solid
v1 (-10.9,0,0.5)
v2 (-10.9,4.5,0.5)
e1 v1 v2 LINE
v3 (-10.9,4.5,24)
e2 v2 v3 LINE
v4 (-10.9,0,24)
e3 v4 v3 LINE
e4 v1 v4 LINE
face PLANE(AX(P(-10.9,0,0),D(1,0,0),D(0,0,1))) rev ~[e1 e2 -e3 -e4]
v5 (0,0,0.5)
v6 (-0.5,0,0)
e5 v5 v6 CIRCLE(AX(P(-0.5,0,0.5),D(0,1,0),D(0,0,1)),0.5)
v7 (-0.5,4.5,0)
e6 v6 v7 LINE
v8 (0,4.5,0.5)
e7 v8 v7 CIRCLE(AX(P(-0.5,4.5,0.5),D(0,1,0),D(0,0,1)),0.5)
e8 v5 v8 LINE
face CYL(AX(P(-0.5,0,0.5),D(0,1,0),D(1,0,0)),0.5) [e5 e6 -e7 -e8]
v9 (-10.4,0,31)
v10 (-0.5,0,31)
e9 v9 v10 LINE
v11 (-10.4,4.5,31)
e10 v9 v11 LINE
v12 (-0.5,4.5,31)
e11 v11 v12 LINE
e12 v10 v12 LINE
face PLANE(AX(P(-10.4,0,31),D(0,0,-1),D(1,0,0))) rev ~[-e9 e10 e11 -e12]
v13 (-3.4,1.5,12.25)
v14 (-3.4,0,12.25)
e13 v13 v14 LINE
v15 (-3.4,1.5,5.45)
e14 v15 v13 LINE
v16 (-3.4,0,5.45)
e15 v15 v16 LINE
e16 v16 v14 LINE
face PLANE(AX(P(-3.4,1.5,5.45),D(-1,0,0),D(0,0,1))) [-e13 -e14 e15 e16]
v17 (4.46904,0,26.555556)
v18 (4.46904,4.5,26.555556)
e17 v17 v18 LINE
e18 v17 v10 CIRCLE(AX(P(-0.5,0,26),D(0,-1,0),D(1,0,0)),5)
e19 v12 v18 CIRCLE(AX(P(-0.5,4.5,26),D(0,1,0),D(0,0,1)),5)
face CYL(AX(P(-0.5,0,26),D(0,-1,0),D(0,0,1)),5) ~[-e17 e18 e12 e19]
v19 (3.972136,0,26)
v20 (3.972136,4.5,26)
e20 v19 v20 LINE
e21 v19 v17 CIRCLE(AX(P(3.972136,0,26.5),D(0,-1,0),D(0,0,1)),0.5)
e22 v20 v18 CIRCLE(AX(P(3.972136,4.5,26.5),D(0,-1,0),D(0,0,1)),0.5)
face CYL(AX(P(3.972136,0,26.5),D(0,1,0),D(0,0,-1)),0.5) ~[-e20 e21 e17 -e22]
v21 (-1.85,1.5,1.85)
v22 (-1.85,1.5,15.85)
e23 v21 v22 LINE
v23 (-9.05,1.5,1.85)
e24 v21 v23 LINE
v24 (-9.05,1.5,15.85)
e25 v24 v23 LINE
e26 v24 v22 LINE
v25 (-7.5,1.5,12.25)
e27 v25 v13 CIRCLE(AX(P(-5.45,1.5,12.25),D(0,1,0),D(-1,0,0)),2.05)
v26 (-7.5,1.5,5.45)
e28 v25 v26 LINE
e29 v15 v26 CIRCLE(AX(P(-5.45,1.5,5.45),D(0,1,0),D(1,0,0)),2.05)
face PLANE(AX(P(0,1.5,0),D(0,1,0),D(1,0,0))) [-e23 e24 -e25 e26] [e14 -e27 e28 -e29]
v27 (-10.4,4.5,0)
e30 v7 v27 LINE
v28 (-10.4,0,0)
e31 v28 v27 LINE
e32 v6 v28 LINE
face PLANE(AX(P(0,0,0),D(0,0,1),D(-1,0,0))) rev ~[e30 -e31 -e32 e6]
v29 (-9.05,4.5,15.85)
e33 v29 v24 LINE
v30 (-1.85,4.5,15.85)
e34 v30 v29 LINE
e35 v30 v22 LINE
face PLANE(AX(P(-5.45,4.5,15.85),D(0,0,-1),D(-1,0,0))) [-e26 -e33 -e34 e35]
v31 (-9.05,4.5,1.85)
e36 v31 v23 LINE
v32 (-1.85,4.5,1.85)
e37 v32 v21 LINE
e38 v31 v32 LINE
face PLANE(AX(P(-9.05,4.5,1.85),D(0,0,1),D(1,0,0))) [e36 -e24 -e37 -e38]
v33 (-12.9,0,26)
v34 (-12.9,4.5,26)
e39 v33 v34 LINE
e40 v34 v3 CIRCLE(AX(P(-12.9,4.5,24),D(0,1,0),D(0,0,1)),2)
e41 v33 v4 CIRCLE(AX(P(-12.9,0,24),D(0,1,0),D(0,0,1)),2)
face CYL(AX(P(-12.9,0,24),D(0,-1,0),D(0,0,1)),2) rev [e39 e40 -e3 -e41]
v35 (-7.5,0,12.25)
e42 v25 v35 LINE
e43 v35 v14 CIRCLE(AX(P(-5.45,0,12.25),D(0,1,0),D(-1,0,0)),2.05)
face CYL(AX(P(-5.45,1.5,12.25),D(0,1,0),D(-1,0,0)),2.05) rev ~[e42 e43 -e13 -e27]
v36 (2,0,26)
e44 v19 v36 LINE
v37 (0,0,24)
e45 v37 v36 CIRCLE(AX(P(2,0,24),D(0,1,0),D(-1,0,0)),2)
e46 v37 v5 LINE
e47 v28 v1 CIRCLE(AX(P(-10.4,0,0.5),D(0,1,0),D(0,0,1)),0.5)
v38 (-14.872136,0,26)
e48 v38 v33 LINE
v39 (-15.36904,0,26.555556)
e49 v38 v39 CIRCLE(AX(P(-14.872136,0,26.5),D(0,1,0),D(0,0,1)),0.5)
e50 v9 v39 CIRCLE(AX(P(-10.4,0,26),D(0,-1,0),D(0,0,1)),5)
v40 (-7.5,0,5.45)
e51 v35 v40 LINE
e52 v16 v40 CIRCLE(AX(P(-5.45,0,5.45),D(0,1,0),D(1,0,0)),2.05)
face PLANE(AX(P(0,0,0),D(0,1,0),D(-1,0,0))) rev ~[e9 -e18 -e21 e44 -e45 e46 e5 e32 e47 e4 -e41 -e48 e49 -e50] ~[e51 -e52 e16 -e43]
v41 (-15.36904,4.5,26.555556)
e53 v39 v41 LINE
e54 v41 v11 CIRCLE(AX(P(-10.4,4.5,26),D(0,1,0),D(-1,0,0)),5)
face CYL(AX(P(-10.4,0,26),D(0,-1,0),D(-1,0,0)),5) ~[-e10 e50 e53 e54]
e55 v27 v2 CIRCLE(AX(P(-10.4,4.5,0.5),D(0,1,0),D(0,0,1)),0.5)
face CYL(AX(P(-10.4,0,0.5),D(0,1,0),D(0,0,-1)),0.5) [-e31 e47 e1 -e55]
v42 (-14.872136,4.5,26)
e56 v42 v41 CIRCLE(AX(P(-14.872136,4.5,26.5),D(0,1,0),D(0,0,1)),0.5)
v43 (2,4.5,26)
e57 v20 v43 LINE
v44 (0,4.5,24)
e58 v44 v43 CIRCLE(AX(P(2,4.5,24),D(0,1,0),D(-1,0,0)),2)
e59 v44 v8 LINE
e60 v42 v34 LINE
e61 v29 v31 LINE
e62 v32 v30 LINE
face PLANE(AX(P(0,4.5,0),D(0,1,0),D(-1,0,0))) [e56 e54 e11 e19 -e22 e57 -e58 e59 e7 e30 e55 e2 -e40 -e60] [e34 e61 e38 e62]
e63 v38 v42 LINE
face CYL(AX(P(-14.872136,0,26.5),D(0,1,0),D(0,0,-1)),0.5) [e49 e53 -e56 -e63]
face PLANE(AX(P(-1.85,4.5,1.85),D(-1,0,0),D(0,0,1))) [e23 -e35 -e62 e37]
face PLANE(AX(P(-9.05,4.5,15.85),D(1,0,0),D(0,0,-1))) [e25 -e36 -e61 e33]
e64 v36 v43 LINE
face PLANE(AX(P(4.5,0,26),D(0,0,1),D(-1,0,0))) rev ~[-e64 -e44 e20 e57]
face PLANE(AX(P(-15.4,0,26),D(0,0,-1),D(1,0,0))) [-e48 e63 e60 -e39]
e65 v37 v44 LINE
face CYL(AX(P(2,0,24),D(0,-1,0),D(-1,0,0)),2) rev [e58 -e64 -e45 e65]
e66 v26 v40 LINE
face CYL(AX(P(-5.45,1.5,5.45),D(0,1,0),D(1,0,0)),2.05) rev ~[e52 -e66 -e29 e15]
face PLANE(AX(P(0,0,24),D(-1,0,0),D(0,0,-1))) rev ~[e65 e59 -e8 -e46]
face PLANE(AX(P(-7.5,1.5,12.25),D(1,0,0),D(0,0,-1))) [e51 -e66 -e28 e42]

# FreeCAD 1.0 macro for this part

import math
import FreeCAD as App
import Part
import Sketcher


def edges_at(feature, points):
    """Names of the edges that pass closest to the given points."""
    edges = feature.Shape.Edges
    near = lambda p: min(range(len(edges)), key=lambda i: edges[i].distToShape(Part.Vertex(*p))[0])
    return sorted({f"Edge{near(p) + 1}" for p in points})

doc = App.newDocument("Part")
body = doc.addObject("PartDesign::Body", "Body")

# Sketch on XZ plane
sketch1 = body.newObject("Sketcher::SketchObject", "Sketch")
sketch1.AttachmentSupport = (doc.getObject("XZ_Plane"), [""])
sketch1.MapMode = "FlatFace"
sketch1.addGeometry(Part.LineSegment(App.Vector(0, 24, 0), App.Vector(0, 0, 0)), False)
sketch1.addGeometry(Part.LineSegment(App.Vector(0, 0, 0), App.Vector(-10.9, 0, 0)), False)
sketch1.addGeometry(Part.LineSegment(App.Vector(-10.9, 0, 0), App.Vector(-10.9, 24, 0)), False)
sketch1.addGeometry(Part.ArcOfCircle(Part.Circle(App.Vector(-12.9, 24, 0), App.Vector(0, 0, 1), 2), math.radians(0), math.radians(90)), False)
sketch1.addGeometry(Part.LineSegment(App.Vector(-12.9, 26, 0), App.Vector(-15.4, 26, 0)), False)
sketch1.addGeometry(Part.ArcOfCircle(Part.Circle(App.Vector(-10.4, 26, 0), App.Vector(0, 0, 1), 5), math.radians(90), math.radians(180)), False)
sketch1.addGeometry(Part.LineSegment(App.Vector(-10.4, 31, 0), App.Vector(-0.5, 31, 0)), False)
sketch1.addGeometry(Part.ArcOfCircle(Part.Circle(App.Vector(-0.5, 26, 0), App.Vector(0, 0, 1), 5), math.radians(0), math.radians(90)), False)
sketch1.addGeometry(Part.LineSegment(App.Vector(4.5, 26, 0), App.Vector(2, 26, 0)), False)
sketch1.addGeometry(Part.ArcOfCircle(Part.Circle(App.Vector(2, 24, 0), App.Vector(0, 0, 1), 2), math.radians(90), math.radians(180)), False)
sketch1.addConstraint(Sketcher.Constraint("Coincident", 0, 2, 1, 1))
sketch1.addConstraint(Sketcher.Constraint("Coincident", 1, 2, 2, 1))
sketch1.addConstraint(Sketcher.Constraint("Tangent", 2, 2, 3, 1))
sketch1.addConstraint(Sketcher.Constraint("Tangent", 3, 2, 4, 1))
sketch1.addConstraint(Sketcher.Constraint("Coincident", 4, 2, 5, 2))
sketch1.addConstraint(Sketcher.Constraint("Tangent", 5, 1, 6, 1))
sketch1.addConstraint(Sketcher.Constraint("Tangent", 6, 2, 7, 2))
sketch1.addConstraint(Sketcher.Constraint("Coincident", 7, 1, 8, 1))
sketch1.addConstraint(Sketcher.Constraint("Tangent", 8, 2, 9, 1))
sketch1.addConstraint(Sketcher.Constraint("Tangent", 9, 2, 0, 1))
sketch1.addConstraint(Sketcher.Constraint("Vertical", 0))
sketch1.addConstraint(Sketcher.Constraint("Horizontal", 1))
sketch1.addConstraint(Sketcher.Constraint("Vertical", 2))
sketch1.addConstraint(Sketcher.Constraint("Horizontal", 4))
sketch1.addConstraint(Sketcher.Constraint("Horizontal", 6))
sketch1.addConstraint(Sketcher.Constraint("Horizontal", 8))
sketch1.addConstraint(Sketcher.Constraint("Coincident", 0, 2, -1, 1))
sketch1.addConstraint(Sketcher.Constraint("Equal", 5, 7))
sketch1.addConstraint(Sketcher.Constraint("Equal", 3, 9))
sketch1.addConstraint(Sketcher.Constraint("Horizontal", 3, 3, 9, 3))
sketch1.addConstraint(Sketcher.Constraint("Horizontal", 7, 3, 3, 2))
sketch1.addConstraint(Sketcher.Constraint("Equal", 4, 8))
sketch1.addConstraint(Sketcher.Constraint("Radius", 3, 2.0))
sketch1.addConstraint(Sketcher.Constraint("Radius", 5, 5.0))
sketch1.addConstraint(Sketcher.Constraint("DistanceX", 1, 2, 1, 1, 10.9))
sketch1.addConstraint(Sketcher.Constraint("DistanceY", -1, 1, 5, 1, 31.0))
sketch1.addConstraint(Sketcher.Constraint("DistanceX", -1, 1, 7, 1, 4.5))
pad1 = body.newObject("PartDesign::Pad", "Pad")
pad1.Profile = sketch1
pad1.Length = 4.5
pad1.Reversed = True

# Sketch on XZ plane
sketch2 = body.newObject("Sketcher::SketchObject", "Sketch001")
sketch2.AttachmentSupport = (doc.getObject("XZ_Plane"), [""])
sketch2.MapMode = "FlatFace"
sketch2.AttachmentOffset = App.Placement(App.Vector(0, 0, -4.5), App.Rotation())
sketch2.addGeometry(Part.LineSegment(App.Vector(-9, 2, 0), App.Vector(-9, 16, 0)), False)
sketch2.addGeometry(Part.LineSegment(App.Vector(-9, 16, 0), App.Vector(-2, 16, 0)), False)
sketch2.addGeometry(Part.LineSegment(App.Vector(-2, 16, 0), App.Vector(-2, 2, 0)), False)
sketch2.addGeometry(Part.LineSegment(App.Vector(-2, 2, 0), App.Vector(-9, 2, 0)), False)
sketch2.addConstraint(Sketcher.Constraint("Coincident", 0, 2, 1, 1))
sketch2.addConstraint(Sketcher.Constraint("Coincident", 1, 2, 2, 1))
sketch2.addConstraint(Sketcher.Constraint("Coincident", 2, 2, 3, 1))
sketch2.addConstraint(Sketcher.Constraint("Coincident", 3, 2, 0, 1))
sketch2.addConstraint(Sketcher.Constraint("Vertical", 0))
sketch2.addConstraint(Sketcher.Constraint("Horizontal", 1))
sketch2.addConstraint(Sketcher.Constraint("Vertical", 2))
sketch2.addConstraint(Sketcher.Constraint("Horizontal", 3))
sketch2.addConstraint(Sketcher.Constraint("DistanceY", 0, 1, 0, 2, 14.0))
sketch2.addConstraint(Sketcher.Constraint("DistanceX", 1, 1, 1, 2, 7.2))
sketch2.addConstraint(Sketcher.Constraint("DistanceX", 0, 2, -1, 1, 9.05))
sketch2.addConstraint(Sketcher.Constraint("DistanceY", -1, 1, 0, 2, 15.85))
pocket1 = body.newObject("PartDesign::Pocket", "Pocket")
pocket1.Profile = sketch2
pocket1.Length = 3
pocket1.Reversed = True

# Sketch on XZ plane
sketch3 = body.newObject("Sketcher::SketchObject", "Sketch002")
sketch3.AttachmentSupport = (doc.getObject("XZ_Plane"), [""])
sketch3.MapMode = "FlatFace"
sketch3.AttachmentOffset = App.Placement(App.Vector(0, 0, -1.5), App.Rotation())
sketch3.addGeometry(Part.LineSegment(App.Vector(-3.4, 12.2, 0), App.Vector(-3.4, 5.5, 0)), False)
sketch3.addGeometry(Part.ArcOfCircle(Part.Circle(App.Vector(-5.5, 5.5, 0), App.Vector(0, 0, 1), 2.1), math.radians(180), math.radians(360)), False)
sketch3.addGeometry(Part.LineSegment(App.Vector(-7.5, 5.5, 0), App.Vector(-7.5, 12.2, 0)), False)
sketch3.addGeometry(Part.ArcOfCircle(Part.Circle(App.Vector(-5.5, 12.2, 0), App.Vector(0, 0, 1), 2), math.radians(0), math.radians(180)), False)
sketch3.addConstraint(Sketcher.Constraint("Tangent", 0, 2, 1, 2))
sketch3.addConstraint(Sketcher.Constraint("Tangent", 1, 1, 2, 1))
sketch3.addConstraint(Sketcher.Constraint("Tangent", 2, 2, 3, 2))
sketch3.addConstraint(Sketcher.Constraint("Tangent", 3, 1, 0, 1))
sketch3.addConstraint(Sketcher.Constraint("Vertical", 0))
sketch3.addConstraint(Sketcher.Constraint("Vertical", 2))
sketch3.addConstraint(Sketcher.Constraint("Radius", 1, 2.05))
sketch3.addConstraint(Sketcher.Constraint("DistanceY", 0, 2, 0, 1, 6.8))
sketch3.addConstraint(Sketcher.Constraint("DistanceX", 0, 2, -1, 1, 3.4))
sketch3.addConstraint(Sketcher.Constraint("DistanceY", -1, 1, 1, 3, 5.45))
pocket2 = body.newObject("PartDesign::Pocket", "Pocket001")
pocket2.Profile = sketch3
pocket2.Length = 3
pocket2.Reversed = True
doc.recompute()

fillet = body.newObject("PartDesign::Fillet", "Fillet")
fillet.Base = (pocket2, edges_at(pocket2, [
    (0, 2.25, 0),
    (-10.9, 2.25, 0),
    (4.5, 2.25, 26),
    (-15.4, 2.25, 26),
]))
fillet.Radius = 0.5

doc.recompute()
